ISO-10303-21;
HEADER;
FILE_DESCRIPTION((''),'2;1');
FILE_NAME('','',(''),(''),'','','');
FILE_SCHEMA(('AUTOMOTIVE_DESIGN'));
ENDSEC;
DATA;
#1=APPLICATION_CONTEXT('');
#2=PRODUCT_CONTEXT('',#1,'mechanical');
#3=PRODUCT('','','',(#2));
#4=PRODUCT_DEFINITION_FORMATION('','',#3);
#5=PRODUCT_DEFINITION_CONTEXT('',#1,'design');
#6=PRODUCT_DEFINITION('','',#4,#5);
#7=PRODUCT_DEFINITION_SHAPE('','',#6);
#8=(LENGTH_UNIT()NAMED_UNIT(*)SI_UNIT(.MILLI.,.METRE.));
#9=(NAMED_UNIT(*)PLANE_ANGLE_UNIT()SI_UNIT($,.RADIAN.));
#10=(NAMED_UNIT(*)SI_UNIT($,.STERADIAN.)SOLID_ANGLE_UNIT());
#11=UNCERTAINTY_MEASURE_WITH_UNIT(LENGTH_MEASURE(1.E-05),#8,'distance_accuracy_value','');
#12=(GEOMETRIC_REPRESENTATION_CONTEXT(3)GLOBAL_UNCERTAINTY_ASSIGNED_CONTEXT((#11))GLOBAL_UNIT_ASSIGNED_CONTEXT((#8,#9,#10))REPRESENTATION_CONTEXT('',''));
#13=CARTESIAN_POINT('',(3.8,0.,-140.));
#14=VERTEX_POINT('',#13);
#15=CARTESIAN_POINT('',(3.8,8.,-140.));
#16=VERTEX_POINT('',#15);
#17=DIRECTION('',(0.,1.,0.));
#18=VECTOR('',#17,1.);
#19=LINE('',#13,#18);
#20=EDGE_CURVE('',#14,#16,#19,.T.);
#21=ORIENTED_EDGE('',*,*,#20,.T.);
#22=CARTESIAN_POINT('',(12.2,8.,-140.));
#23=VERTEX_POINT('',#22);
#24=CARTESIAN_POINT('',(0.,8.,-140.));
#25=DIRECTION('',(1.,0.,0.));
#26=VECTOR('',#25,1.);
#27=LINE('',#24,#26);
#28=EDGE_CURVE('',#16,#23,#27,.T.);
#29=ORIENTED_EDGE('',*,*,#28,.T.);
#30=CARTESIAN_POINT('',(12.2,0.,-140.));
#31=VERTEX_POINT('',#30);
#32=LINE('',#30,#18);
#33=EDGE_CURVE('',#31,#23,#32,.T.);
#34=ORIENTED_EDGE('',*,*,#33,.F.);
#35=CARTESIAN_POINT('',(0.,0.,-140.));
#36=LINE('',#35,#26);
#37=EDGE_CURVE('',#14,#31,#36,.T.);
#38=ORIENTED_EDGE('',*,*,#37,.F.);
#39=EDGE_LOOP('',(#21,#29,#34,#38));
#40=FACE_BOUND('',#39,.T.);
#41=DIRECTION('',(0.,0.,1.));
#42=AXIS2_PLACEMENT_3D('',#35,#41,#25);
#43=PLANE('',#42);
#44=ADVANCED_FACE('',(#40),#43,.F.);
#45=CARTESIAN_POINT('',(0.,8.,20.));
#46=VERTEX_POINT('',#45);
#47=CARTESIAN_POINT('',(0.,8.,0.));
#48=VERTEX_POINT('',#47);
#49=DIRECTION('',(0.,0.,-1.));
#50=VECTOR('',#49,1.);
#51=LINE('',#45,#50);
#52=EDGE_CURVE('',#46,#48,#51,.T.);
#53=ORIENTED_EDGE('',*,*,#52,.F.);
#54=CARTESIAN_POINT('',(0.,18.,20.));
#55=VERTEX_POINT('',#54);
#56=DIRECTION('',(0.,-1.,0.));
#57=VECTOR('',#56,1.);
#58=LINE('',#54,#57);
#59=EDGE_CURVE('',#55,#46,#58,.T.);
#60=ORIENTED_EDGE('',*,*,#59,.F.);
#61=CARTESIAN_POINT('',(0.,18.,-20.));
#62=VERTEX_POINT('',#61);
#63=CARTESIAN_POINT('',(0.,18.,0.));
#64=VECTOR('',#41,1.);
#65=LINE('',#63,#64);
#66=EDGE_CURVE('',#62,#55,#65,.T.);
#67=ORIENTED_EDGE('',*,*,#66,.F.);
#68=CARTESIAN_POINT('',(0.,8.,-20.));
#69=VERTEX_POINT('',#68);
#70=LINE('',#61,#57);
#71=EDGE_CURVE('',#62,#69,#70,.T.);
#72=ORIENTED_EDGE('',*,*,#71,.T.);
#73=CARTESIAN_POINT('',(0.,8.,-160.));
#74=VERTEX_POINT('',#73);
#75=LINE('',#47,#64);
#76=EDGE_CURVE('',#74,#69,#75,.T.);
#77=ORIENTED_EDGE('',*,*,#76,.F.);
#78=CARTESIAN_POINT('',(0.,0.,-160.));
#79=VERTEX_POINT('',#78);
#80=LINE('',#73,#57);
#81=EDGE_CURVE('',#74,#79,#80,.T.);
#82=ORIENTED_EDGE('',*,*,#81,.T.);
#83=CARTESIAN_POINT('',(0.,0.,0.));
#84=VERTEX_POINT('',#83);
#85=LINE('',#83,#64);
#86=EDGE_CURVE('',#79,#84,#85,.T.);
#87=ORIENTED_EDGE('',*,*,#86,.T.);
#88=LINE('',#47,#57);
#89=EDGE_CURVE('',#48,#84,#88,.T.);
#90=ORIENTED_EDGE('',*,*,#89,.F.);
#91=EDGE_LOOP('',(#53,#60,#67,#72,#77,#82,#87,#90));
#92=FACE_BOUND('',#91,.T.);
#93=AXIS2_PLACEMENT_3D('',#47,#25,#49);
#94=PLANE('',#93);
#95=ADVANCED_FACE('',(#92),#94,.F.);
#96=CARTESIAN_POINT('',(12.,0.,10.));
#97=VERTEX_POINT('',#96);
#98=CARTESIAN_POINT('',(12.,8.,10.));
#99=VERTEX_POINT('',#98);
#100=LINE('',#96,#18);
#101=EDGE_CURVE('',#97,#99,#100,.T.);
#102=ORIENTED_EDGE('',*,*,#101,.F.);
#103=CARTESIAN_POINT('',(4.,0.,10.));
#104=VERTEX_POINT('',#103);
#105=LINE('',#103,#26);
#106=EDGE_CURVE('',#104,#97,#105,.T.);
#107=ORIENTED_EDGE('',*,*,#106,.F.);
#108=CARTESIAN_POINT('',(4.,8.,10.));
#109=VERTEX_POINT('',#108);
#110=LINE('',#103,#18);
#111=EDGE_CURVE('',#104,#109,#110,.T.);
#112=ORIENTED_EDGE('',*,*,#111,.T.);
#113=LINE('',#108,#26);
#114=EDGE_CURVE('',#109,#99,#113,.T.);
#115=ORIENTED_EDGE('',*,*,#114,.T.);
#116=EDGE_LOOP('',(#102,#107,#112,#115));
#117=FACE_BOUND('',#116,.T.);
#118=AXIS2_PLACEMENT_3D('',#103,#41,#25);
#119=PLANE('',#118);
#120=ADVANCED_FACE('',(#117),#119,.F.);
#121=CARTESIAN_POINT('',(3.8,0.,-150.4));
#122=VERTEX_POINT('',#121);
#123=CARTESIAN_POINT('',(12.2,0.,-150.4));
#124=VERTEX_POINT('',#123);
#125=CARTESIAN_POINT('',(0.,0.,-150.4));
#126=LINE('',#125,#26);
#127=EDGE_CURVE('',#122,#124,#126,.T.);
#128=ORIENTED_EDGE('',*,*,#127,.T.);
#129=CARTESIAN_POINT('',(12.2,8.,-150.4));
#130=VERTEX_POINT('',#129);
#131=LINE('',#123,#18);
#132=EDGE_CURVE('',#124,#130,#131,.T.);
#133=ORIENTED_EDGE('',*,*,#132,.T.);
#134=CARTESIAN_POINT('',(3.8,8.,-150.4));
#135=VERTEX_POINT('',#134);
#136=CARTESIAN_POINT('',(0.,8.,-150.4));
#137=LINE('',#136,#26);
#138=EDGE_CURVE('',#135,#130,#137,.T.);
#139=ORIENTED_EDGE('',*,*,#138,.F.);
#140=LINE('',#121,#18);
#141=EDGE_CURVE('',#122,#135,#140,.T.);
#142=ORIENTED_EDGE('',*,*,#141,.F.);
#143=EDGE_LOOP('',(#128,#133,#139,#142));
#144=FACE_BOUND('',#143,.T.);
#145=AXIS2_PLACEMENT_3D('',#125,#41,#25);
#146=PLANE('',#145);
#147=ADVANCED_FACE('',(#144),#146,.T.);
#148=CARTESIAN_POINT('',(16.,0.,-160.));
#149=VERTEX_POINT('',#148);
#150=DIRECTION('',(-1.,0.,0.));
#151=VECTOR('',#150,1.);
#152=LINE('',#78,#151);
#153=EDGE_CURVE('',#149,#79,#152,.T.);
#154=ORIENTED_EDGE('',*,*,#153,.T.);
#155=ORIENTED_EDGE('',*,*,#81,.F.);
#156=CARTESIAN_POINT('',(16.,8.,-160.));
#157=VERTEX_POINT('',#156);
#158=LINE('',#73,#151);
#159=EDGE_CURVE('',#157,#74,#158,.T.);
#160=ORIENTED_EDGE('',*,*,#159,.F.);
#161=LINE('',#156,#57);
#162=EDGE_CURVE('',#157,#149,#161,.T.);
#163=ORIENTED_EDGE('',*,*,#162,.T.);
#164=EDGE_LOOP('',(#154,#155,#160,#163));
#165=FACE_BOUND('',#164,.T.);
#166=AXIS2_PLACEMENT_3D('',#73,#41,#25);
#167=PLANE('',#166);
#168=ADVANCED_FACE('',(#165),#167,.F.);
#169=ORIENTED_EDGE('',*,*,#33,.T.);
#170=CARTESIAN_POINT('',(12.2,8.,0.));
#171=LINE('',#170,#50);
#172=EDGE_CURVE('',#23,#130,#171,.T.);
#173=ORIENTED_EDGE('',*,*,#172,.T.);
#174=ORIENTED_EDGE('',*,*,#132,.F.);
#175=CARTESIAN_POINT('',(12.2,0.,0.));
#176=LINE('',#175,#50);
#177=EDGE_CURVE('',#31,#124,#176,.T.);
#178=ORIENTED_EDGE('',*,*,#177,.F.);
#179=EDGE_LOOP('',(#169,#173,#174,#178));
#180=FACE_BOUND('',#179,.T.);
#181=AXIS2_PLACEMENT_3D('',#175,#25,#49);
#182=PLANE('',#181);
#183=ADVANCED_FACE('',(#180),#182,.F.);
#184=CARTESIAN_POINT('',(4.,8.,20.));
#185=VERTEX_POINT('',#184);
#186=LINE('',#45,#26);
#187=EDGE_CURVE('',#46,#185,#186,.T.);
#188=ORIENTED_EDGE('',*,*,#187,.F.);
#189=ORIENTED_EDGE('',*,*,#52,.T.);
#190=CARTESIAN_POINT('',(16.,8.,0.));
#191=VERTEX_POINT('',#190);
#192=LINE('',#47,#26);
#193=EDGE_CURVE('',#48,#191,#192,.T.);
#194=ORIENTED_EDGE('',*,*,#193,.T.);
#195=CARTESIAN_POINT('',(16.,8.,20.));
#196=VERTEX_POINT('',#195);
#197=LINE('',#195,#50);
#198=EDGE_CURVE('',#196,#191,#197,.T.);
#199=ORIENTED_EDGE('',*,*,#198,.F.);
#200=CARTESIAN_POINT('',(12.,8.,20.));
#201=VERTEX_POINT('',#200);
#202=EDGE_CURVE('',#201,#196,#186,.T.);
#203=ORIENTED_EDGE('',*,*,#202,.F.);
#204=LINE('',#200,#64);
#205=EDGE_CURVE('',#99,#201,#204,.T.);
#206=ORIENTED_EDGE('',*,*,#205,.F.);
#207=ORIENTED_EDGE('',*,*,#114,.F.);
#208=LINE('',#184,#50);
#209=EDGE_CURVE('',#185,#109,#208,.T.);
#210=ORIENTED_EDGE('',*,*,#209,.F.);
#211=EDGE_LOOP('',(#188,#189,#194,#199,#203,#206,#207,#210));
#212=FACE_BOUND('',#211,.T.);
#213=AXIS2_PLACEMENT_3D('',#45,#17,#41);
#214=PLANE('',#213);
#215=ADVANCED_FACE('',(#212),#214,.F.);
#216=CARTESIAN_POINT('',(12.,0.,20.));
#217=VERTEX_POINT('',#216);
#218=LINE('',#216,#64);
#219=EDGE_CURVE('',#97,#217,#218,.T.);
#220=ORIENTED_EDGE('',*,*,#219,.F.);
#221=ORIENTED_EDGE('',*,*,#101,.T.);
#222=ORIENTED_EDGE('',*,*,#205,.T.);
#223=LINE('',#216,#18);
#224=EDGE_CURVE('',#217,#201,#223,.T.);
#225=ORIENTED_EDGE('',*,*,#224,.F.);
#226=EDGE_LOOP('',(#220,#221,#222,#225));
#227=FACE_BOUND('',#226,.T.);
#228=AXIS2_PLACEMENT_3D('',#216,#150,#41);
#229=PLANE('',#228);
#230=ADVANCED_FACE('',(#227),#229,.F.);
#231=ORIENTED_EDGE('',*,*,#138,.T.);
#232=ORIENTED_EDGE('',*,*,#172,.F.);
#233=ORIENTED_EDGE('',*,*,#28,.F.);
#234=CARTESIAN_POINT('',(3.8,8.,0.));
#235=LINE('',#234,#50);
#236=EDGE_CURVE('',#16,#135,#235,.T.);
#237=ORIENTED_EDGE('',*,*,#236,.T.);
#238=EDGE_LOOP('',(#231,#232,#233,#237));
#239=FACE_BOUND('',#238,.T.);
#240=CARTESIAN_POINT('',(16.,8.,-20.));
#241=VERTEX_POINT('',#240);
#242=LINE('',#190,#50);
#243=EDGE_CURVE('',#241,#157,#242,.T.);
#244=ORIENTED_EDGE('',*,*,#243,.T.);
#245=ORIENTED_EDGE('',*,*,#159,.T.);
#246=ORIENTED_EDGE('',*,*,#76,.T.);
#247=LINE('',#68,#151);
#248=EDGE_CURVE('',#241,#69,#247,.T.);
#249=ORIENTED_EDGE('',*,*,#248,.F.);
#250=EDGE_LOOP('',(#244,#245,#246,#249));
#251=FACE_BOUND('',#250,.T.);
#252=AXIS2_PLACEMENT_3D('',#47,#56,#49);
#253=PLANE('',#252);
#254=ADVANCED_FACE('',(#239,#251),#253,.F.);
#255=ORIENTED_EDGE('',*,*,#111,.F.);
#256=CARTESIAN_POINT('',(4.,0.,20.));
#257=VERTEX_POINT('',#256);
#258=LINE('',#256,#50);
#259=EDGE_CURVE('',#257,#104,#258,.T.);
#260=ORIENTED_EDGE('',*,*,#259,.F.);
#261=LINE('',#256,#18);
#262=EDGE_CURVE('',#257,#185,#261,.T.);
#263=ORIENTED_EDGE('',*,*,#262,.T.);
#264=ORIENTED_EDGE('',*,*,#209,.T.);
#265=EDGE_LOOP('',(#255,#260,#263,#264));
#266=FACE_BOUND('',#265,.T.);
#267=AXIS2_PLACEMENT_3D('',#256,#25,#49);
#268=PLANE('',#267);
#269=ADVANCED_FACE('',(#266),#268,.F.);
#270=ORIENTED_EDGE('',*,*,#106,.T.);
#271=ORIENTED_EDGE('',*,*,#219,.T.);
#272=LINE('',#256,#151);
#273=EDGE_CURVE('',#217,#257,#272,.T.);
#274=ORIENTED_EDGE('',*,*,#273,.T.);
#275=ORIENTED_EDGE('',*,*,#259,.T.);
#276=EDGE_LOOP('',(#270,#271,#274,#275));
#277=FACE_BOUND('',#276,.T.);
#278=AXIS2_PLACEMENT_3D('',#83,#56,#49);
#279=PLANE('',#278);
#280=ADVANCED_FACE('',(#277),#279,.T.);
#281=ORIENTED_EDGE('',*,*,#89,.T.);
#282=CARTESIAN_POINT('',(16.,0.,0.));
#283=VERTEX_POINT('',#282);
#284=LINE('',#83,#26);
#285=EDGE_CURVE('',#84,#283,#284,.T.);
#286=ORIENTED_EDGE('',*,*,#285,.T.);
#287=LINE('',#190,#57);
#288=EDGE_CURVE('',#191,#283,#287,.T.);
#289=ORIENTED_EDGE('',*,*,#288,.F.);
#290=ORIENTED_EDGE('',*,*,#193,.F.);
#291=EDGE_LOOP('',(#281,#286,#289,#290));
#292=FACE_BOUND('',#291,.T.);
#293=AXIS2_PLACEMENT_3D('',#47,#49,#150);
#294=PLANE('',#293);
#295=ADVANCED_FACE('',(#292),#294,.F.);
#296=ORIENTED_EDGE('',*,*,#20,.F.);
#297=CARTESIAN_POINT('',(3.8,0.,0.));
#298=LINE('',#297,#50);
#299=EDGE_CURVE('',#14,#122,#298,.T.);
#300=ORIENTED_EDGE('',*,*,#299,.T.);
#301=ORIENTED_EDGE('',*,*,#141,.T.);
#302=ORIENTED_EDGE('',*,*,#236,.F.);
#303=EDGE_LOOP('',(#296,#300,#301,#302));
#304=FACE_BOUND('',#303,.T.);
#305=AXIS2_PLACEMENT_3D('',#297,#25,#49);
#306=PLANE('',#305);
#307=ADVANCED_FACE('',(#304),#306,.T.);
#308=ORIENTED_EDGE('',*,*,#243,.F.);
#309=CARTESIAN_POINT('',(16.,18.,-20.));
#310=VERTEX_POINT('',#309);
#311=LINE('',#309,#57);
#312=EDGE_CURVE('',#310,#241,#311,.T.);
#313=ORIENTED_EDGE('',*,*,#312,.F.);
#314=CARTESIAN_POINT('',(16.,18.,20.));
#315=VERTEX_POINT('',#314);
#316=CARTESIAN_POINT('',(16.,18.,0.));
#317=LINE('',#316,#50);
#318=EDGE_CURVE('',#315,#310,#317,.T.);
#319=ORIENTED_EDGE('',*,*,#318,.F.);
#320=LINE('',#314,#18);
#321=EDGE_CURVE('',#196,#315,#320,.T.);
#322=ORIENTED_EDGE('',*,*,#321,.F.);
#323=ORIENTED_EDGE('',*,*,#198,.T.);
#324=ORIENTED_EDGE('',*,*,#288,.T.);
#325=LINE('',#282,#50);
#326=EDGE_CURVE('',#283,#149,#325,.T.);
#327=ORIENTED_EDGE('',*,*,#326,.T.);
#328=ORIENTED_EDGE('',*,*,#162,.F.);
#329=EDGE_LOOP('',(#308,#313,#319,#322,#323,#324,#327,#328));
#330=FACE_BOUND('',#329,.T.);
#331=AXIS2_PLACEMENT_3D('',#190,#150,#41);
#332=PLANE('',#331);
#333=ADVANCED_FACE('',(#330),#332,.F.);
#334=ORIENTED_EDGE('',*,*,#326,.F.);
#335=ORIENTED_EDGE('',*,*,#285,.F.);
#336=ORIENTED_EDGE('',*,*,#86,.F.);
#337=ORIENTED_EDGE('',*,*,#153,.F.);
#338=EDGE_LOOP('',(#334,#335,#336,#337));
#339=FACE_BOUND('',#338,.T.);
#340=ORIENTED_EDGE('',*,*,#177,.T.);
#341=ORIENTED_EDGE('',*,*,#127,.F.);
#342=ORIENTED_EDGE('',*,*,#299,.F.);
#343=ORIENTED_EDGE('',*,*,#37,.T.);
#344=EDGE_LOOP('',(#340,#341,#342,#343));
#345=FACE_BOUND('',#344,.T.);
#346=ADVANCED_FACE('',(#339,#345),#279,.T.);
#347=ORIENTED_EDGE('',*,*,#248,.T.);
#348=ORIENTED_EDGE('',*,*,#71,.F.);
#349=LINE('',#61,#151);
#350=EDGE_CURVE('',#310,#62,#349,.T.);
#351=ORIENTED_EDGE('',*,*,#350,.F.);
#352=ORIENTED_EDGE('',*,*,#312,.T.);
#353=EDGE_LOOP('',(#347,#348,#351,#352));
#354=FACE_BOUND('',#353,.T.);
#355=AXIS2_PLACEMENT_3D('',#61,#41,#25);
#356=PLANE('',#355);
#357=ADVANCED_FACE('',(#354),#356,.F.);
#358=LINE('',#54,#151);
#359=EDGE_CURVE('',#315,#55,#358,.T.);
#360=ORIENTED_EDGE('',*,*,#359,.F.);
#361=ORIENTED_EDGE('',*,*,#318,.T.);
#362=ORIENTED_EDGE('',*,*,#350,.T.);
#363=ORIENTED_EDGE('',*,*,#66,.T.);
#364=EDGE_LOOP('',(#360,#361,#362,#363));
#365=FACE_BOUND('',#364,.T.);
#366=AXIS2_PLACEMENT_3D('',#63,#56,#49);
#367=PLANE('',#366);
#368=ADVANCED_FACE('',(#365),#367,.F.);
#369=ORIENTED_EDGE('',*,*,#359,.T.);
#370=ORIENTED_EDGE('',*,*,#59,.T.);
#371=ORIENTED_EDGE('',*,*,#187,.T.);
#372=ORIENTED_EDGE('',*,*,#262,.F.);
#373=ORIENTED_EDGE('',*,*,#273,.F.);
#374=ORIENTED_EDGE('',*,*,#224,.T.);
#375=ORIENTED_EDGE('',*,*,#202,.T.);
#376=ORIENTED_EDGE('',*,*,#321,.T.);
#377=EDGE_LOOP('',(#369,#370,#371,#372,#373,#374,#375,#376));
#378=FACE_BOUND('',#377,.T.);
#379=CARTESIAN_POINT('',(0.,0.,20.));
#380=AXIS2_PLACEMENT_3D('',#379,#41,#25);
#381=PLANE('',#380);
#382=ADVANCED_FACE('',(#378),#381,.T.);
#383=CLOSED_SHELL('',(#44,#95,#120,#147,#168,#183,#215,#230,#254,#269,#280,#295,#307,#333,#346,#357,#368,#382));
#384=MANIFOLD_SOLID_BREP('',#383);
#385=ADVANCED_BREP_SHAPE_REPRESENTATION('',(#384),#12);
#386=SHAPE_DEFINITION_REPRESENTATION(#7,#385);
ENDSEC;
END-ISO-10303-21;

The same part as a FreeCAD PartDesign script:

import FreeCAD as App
import Part
import Sketcher
from FreeCAD import Vector
Q = App.Units.Quantity


def add_polygon(sketch, points):
    """Adds a closed chain of lines whose ends are joined by coincident constraints."""
    first, n = sketch.GeometryCount, len(points)
    for a, b in zip(points, points[1:] + points[:1]):
        sketch.addGeometry(Part.LineSegment(App.Vector(*a, 0), App.Vector(*b, 0)), False)
    for i in range(n):
        sketch.addConstraint(Sketcher.Constraint("Coincident", first + i, 2, first + (i + 1) % n, 1))

doc = App.newDocument("Part")
params = doc.addObject("Spreadsheet::Sheet", "Params")
for row, (alias, value) in enumerate([
    ("sketch1_width", "16 mm"),
    ("sketch1_height", "160 mm"),
    ("pad1_length", "8 mm"),
    ("sketch2_width", "16 mm"),
    ("sketch2_height", "20 mm"),
    ("pad2_length", "10 mm"),
    ("sketch3_width", "16 mm"),
    ("sketch3_height", "10 mm"),
    ("pad3_length", "20 mm"),
    ("sketch4_width", "8 mm"),
    ("sketch4_height", "10 mm"),
    ("pad4_length", "8 mm"),
    ("sketch5_width", "8.4 mm"),
    ("sketch5_height", "10.4 mm"),
], start=1):
    params.set(f"A{row}", alias)
    params.set(f"B{row}", "=" + value)
    params.setAlias(f"B{row}", alias)

body = doc.addObject("PartDesign::Body", "Body")

# Sketch on XZ plane
sketch1 = body.newObject("Sketcher::SketchObject", "Sketch")
sketch1.AttachmentSupport = (doc.getObject("XZ_Plane"), [""])
sketch1.MapMode = "FlatFace"
add_polygon(sketch1, [(0, -160), (0, 0), (16, 0), (16, -160)])  # lines 0-3
sketch1.addConstraint([
    Sketcher.Constraint("Vertical", 0),
    Sketcher.Constraint("Horizontal", 1),
    Sketcher.Constraint("Vertical", 2),
    Sketcher.Constraint("Horizontal", 3),
    Sketcher.Constraint("Coincident", 0, 2, -1, 1),
    Sketcher.Constraint("DistanceX", 1, 1, 1, 2, Q("16 mm")),
    Sketcher.Constraint("DistanceY", 0, 1, 0, 2, Q("160 mm")),
])
sketch1.setExpression("Constraints[9]", "Params.sketch1_width")
sketch1.setExpression("Constraints[10]", "Params.sketch1_height")
pad1 = body.newObject("PartDesign::Pad", "Pad")
pad1.Profile = sketch1
pad1.setExpression("Length", "Params.pad1_length")
pad1.Reversed = True

# Sketch on XZ plane
sketch2 = body.newObject("Sketcher::SketchObject", "Sketch001")
sketch2.AttachmentSupport = (doc.getObject("XZ_Plane"), [""])
sketch2.MapMode = "FlatFace"
sketch2.AttachmentOffset = App.Placement(Vector(0, 0, -8), App.Rotation())
add_polygon(sketch2, [(0, -20), (0, 0), (16, 0), (16, -20)])  # lines 0-3
sketch2.addConstraint([
    Sketcher.Constraint("Vertical", 0),
    Sketcher.Constraint("Horizontal", 1),
    Sketcher.Constraint("Vertical", 2),
    Sketcher.Constraint("Horizontal", 3),
    Sketcher.Constraint("Coincident", 0, 2, -1, 1),
    Sketcher.Constraint("DistanceX", 1, 1, 1, 2, Q("16 mm")),
    Sketcher.Constraint("DistanceY", 0, 1, 0, 2, Q("20 mm")),
])
sketch2.setExpression("Constraints[9]", "Params.sketch2_width")
sketch2.setExpression("Constraints[10]", "Params.sketch2_height")
pad2 = body.newObject("PartDesign::Pad", "Pad001")
pad2.Profile = sketch2
pad2.setExpression("Length", "Params.pad2_length")
pad2.Reversed = True

# Sketch on XY plane
sketch3 = body.newObject("Sketcher::SketchObject", "Sketch002")
sketch3.AttachmentSupport = (doc.getObject("XY_Plane"), [""])
sketch3.MapMode = "FlatFace"
add_polygon(sketch3, [(0, 18), (0, 8), (16, 8), (16, 18)])  # lines 0-3
sketch3.addConstraint([
    Sketcher.Constraint("Vertical", 0),
    Sketcher.Constraint("Horizontal", 1),
    Sketcher.Constraint("Vertical", 2),
    Sketcher.Constraint("Horizontal", 3),
    Sketcher.Constraint("PointOnObject", 0, 2, -2),
    Sketcher.Constraint("DistanceX", 1, 1, 1, 2, Q("16 mm")),
    Sketcher.Constraint("DistanceY", 0, 2, 0, 1, Q("10 mm")),
    Sketcher.Constraint("DistanceY", -1, 1, 0, 2, Q("8 mm")),
])
sketch3.setExpression("Constraints[9]", "Params.sketch3_width")
sketch3.setExpression("Constraints[10]", "Params.sketch3_height")
pad3 = body.newObject("PartDesign::Pad", "Pad002")
pad3.Profile = sketch3
pad3.setExpression("Length", "Params.pad3_length")

# Sketch on XZ plane
sketch4 = body.newObject("Sketcher::SketchObject", "Sketch003")
sketch4.AttachmentSupport = (doc.getObject("XZ_Plane"), [""])
sketch4.MapMode = "FlatFace"
sketch4.AttachmentOffset = App.Placement(Vector(0, 0, -8), App.Rotation())
add_polygon(sketch4, [(4, 20), (4, 10), (12, 10), (12, 20)])  # lines 0-3
sketch4.addConstraint([
    Sketcher.Constraint("Vertical", 0),
    Sketcher.Constraint("Horizontal", 1),
    Sketcher.Constraint("Vertical", 2),
    Sketcher.Constraint("Horizontal", 3),
    Sketcher.Constraint("DistanceX", 1, 1, 1, 2, Q("8 mm")),
    Sketcher.Constraint("DistanceY", 0, 2, 0, 1, Q("10 mm")),
    Sketcher.Constraint("DistanceX", -1, 1, 0, 2, Q("4 mm")),
    Sketcher.Constraint("DistanceY", -1, 1, 0, 2, Q("10 mm")),
])
sketch4.setExpression("Constraints[8]", "Params.sketch4_width")
sketch4.setExpression("Constraints[9]", "Params.sketch4_height")
pad4 = body.newObject("PartDesign::Pad", "Pad003")
pad4.Profile = sketch4
pad4.setExpression("Length", "Params.pad4_length")

# Sketch on XZ plane
sketch5 = body.newObject("Sketcher::SketchObject", "Sketch004")
sketch5.AttachmentSupport = (doc.getObject("XZ_Plane"), [""])
sketch5.MapMode = "FlatFace"
sketch5.AttachmentOffset = App.Placement(Vector(0, 0, -8), App.Rotation())
add_polygon(sketch5, [(4, -150), (4, -140), (12, -140), (12, -150)])  # lines 0-3
sketch5.addConstraint([
    Sketcher.Constraint("Vertical", 0),
    Sketcher.Constraint("Horizontal", 1),
    Sketcher.Constraint("Vertical", 2),
    Sketcher.Constraint("Horizontal", 3),
    Sketcher.Constraint("DistanceX", 1, 1, 1, 2, Q("8.4 mm")),
    Sketcher.Constraint("DistanceY", 0, 1, 0, 2, Q("10.4 mm")),
    Sketcher.Constraint("DistanceY", 0, 2, -1, 1, Q("140 mm")),
    Sketcher.Constraint("DistanceX", -1, 1, 0, 2, Q("3.8 mm")),
])
sketch5.setExpression("Constraints[8]", "Params.sketch5_width")
sketch5.setExpression("Constraints[9]", "Params.sketch5_height")
pocket1 = body.newObject("PartDesign::Pocket", "Pocket")
pocket1.Profile = sketch5
pocket1.Type = "ThroughAll"
pocket1.Reversed = True

doc.recompute()
